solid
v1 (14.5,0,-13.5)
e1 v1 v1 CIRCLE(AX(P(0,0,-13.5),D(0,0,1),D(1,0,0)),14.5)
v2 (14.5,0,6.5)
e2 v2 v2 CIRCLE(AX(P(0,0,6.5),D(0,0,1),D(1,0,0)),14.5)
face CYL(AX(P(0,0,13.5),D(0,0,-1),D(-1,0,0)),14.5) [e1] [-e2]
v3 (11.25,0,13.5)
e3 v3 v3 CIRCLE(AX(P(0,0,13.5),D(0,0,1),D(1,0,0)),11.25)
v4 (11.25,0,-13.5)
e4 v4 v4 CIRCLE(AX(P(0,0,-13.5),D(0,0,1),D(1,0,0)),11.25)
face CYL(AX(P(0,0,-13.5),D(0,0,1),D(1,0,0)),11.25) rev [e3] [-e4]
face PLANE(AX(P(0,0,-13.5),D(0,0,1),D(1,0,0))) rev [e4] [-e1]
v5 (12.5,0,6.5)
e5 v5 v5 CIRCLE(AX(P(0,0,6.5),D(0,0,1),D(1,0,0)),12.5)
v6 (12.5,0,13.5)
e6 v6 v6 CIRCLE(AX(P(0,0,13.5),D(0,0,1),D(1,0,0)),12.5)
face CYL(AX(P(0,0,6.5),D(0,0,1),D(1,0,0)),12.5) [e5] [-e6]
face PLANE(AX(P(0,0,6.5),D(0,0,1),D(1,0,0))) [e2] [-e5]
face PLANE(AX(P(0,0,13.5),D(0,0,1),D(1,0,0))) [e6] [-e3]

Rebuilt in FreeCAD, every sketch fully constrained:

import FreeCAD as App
import Part
import Sketcher

V = App.Vector

doc = App.newDocument("Part")
body = doc.addObject("PartDesign::Body", "Body")

# Sketch on XY plane
sketch1 = body.newObject("Sketcher::SketchObject", "Sketch")
sketch1.AttachmentSupport = (doc.getObject("XY_Plane"), [""])
sketch1.MapMode = "FlatFace"
sketch1.addGeometry(Part.Circle(V(0, 0, 0), V(0, 0, 1), 14), False)
sketch1.addConstraint(Sketcher.Constraint("Coincident", 0, 3, -1, 1))
sketch1.addConstraint(Sketcher.Constraint("Diameter", 0, 29.0))
pad1 = body.newObject("PartDesign::Pad", "Pad")
pad1.Profile = sketch1
pad1.Length = 27
pad1.Midplane = True

# Sketch on XY plane
sketch2 = body.newObject("Sketcher::SketchObject", "Sketch001")
sketch2.AttachmentSupport = (doc.getObject("XY_Plane"), [""])
sketch2.MapMode = "FlatFace"
sketch2.AttachmentOffset = App.Placement(V(0, 0, 13.5), App.Rotation())
sketch2.addGeometry(Part.LineSegment(V(-20, 20, 0), V(-20, -20, 0)), False)
sketch2.addGeometry(Part.LineSegment(V(-20, -20, 0), V(20, -20, 0)), False)
sketch2.addGeometry(Part.LineSegment(V(20, -20, 0), V(20, 20, 0)), False)
sketch2.addGeometry(Part.LineSegment(V(20, 20, 0), V(-20, 20, 0)), False)
sketch2.addGeometry(Part.Circle(V(0, 0, 0), V(0, 0, 1), 12), False)
sketch2.addConstraint(Sketcher.Constraint("Coincident", 0, 2, 1, 1))
sketch2.addConstraint(Sketcher.Constraint("Coincident", 1, 2, 2, 1))
sketch2.addConstraint(Sketcher.Constraint("Coincident", 2, 2, 3, 1))
sketch2.addConstraint(Sketcher.Constraint("Coincident", 3, 2, 0, 1))
sketch2.addConstraint(Sketcher.Constraint("Vertical", 0))
sketch2.addConstraint(Sketcher.Constraint("Horizontal", 1))
sketch2.addConstraint(Sketcher.Constraint("Vertical", 2))
sketch2.addConstraint(Sketcher.Constraint("Horizontal", 3))
sketch2.addConstraint(Sketcher.Constraint("Coincident", 4, 3, -1, 1))
sketch2.addConstraint(Sketcher.Constraint("Symmetric", 0, 2, 2, 2, -1, 1))
sketch2.addConstraint(Sketcher.Constraint("Equal", 3, 0))
sketch2.addConstraint(Sketcher.Constraint("Diameter", 4, 25.0))
sketch2.addConstraint(Sketcher.Constraint("DistanceX", 1, 1, 1, 2, 40.82))
pocket1 = body.newObject("PartDesign::Pocket", "Pocket")
pocket1.Profile = sketch2
pocket1.Length = 7

# Sketch on XY plane
sketch3 = body.newObject("Sketcher::SketchObject", "Sketch002")
sketch3.AttachmentSupport = (doc.getObject("XY_Plane"), [""])
sketch3.MapMode = "FlatFace"
sketch3.AttachmentOffset = App.Placement(V(0, 0, 13.5), App.Rotation())
sketch3.addGeometry(Part.Circle(V(0, 0, 0), V(0, 0, 1), 11), False)
sketch3.addConstraint(Sketcher.Constraint("Coincident", 0, 3, -1, 1))
sketch3.addConstraint(Sketcher.Constraint("Diameter", 0, 22.5))
pocket2 = body.newObject("PartDesign::Pocket", "Pocket001")
pocket2.Profile = sketch3
pocket2.Type = "ThroughAll"

doc.recompute()
